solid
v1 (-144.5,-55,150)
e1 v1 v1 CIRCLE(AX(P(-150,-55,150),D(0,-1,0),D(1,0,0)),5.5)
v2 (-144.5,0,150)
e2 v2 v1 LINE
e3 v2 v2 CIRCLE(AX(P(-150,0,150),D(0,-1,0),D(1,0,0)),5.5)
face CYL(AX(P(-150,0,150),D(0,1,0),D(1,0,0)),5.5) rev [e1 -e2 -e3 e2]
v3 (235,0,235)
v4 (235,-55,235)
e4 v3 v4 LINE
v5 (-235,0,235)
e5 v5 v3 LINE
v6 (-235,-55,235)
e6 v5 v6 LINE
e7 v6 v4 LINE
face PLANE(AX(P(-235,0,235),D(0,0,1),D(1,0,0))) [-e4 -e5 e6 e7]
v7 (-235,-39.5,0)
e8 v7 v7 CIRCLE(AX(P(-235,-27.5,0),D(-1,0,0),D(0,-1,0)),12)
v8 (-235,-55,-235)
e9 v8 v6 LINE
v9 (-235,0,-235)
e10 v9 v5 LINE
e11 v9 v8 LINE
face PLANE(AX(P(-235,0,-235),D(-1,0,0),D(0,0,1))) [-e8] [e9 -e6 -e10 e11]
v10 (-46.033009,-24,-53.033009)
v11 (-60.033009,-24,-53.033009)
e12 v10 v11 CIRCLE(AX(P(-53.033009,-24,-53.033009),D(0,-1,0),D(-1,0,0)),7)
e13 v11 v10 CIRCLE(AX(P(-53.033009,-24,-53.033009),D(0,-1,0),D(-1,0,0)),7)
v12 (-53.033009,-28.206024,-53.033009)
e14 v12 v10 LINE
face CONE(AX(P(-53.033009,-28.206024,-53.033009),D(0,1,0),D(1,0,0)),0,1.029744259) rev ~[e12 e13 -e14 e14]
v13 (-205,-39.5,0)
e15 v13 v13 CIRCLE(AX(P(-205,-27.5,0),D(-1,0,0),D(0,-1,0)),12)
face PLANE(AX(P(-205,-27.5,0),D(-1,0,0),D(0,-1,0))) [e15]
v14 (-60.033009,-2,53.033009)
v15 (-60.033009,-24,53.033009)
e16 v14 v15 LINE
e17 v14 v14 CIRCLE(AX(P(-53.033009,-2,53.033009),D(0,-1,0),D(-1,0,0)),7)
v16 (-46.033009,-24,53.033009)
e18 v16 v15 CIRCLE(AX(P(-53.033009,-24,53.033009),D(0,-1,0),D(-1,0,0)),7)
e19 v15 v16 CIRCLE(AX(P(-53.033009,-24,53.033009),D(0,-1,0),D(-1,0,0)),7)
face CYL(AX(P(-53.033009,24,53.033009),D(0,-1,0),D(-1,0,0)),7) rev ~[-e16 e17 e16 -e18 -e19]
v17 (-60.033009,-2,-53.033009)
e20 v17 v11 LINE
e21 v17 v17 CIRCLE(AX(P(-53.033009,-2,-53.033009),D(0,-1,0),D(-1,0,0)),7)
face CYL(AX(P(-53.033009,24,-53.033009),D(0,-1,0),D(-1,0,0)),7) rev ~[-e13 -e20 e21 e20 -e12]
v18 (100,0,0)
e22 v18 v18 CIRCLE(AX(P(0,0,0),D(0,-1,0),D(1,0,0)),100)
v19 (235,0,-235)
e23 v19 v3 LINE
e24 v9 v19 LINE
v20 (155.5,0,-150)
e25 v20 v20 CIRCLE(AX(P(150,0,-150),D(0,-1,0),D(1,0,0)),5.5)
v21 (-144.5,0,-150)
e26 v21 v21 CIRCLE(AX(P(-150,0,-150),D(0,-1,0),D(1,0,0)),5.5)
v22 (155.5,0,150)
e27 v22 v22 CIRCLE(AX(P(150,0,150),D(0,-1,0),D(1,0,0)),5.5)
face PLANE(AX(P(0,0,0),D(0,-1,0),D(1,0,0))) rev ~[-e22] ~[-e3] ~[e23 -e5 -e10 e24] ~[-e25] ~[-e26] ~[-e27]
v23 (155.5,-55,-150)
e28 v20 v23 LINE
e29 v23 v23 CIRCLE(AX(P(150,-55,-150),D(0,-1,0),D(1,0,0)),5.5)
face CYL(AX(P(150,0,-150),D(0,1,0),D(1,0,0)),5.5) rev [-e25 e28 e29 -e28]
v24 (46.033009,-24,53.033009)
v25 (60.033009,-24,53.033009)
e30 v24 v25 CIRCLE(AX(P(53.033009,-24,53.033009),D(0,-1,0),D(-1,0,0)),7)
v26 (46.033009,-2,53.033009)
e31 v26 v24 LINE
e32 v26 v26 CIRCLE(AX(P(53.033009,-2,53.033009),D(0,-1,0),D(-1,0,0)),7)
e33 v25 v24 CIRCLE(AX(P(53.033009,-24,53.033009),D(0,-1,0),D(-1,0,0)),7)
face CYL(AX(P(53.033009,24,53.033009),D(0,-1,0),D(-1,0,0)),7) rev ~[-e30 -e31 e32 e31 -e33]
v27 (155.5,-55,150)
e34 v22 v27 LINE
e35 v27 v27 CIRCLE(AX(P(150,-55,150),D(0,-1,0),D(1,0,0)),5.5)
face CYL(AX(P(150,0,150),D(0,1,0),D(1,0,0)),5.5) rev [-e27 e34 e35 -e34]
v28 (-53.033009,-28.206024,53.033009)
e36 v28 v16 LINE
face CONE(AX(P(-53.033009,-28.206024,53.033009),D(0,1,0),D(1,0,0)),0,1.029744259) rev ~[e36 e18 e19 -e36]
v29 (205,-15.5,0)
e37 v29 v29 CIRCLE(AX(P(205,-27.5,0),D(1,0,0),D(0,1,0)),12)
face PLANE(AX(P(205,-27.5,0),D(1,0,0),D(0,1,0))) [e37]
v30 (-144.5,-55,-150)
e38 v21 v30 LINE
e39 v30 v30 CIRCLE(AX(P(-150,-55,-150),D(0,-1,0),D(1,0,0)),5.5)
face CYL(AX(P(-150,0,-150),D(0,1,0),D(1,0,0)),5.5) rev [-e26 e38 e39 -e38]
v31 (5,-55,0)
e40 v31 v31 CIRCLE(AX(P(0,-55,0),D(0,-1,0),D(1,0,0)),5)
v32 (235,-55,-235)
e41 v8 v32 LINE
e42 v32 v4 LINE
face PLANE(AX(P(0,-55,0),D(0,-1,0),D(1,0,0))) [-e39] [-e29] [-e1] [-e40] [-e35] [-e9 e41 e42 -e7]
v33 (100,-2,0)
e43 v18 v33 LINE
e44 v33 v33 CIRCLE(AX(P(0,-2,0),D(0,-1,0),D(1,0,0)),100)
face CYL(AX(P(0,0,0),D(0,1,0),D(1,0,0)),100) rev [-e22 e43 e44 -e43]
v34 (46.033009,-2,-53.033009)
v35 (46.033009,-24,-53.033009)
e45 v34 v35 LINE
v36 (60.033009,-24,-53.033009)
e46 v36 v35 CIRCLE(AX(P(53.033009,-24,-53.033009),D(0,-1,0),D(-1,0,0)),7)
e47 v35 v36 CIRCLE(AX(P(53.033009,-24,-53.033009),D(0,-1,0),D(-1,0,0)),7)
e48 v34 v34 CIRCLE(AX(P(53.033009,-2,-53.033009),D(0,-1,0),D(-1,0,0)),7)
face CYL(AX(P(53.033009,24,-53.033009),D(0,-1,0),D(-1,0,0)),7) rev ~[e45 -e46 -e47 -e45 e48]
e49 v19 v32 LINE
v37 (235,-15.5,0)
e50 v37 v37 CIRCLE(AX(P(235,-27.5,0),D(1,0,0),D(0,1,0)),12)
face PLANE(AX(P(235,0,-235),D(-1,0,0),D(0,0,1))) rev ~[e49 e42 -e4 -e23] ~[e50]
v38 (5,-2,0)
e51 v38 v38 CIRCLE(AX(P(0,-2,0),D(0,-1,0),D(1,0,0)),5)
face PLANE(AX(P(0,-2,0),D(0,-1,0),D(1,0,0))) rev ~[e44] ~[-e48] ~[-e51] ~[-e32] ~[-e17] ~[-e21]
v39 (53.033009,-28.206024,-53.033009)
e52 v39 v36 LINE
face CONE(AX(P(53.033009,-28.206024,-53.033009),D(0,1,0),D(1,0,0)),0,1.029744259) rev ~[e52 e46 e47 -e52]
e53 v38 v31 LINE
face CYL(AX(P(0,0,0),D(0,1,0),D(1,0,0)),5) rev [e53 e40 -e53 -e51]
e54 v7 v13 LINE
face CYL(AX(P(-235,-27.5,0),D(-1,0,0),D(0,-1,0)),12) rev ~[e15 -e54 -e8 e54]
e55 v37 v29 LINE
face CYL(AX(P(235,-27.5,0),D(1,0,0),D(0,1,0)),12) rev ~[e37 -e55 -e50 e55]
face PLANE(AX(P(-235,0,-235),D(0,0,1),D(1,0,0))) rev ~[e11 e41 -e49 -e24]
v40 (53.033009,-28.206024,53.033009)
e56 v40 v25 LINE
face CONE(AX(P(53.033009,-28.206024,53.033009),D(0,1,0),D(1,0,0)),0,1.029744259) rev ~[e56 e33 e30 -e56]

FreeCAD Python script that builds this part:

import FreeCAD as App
import Part
import Sketcher
Q = App.Units.Quantity

doc = App.newDocument("Part")
params = doc.addObject("Spreadsheet::Sheet", "Params")
for row, (alias, value) in enumerate([
    ("sketch1_diameter", "11 mm"),
    ("sketch1_diameter2", "10 mm"),
    ("sketch1_width", "470 mm"),
    ("pad1_length", "55 mm"),
    ("sketch2_diameter", "14 mm"),
    ("hole_diameter", "14 mm"),
    ("hole_depth", "24 mm"),
    ("sketch3_diameter", "200 mm"),
    ("sketch3_diameter2", "10 mm"),
    ("pocket1_length", "2 mm"),
    ("sketch4_diameter", "24 mm"),
    ("pocket2_length", "30 mm"),
    ("sketch5_diameter", "24 mm"),
    ("pocket3_length", "30 mm"),
], start=1):
    params.set(f"A{row}", alias)
    params.set(f"B{row}", "=" + value)
    params.setAlias(f"B{row}", alias)

body = doc.addObject("PartDesign::Body", "Body")

# Sketch on XZ plane
sketch1 = body.newObject("Sketcher::SketchObject", "Sketch")
sketch1.AttachmentSupport = (doc.getObject("XZ_Plane"), [""])
sketch1.MapMode = "FlatFace"
sketch1.addGeometry(Part.LineSegment(App.Vector(-235, 235, 0), App.Vector(-235, -235, 0)), False)
sketch1.addGeometry(Part.LineSegment(App.Vector(-235, -235, 0), App.Vector(235, -235, 0)), False)
sketch1.addGeometry(Part.LineSegment(App.Vector(235, -235, 0), App.Vector(235, 235, 0)), False)
sketch1.addGeometry(Part.LineSegment(App.Vector(235, 235, 0), App.Vector(-235, 235, 0)), False)
sketch1.addGeometry(Part.Circle(App.Vector(-150, -150, 0), App.Vector(0, 0, 1), 6), False)
sketch1.addGeometry(Part.Circle(App.Vector(150, -150, 0), App.Vector(0, 0, 1), 6), False)
sketch1.addGeometry(Part.Circle(App.Vector(-150, 150, 0), App.Vector(0, 0, 1), 6), False)
sketch1.addGeometry(Part.Circle(App.Vector(0, 0, 0), App.Vector(0, 0, 1), 5), False)
sketch1.addGeometry(Part.Circle(App.Vector(150, 150, 0), App.Vector(0, 0, 1), 6), False)
sketch1.addConstraint(Sketcher.Constraint("Coincident", 0, 2, 1, 1))
sketch1.addConstraint(Sketcher.Constraint("Coincident", 1, 2, 2, 1))
sketch1.addConstraint(Sketcher.Constraint("Coincident", 2, 2, 3, 1))
sketch1.addConstraint(Sketcher.Constraint("Coincident", 3, 2, 0, 1))
sketch1.addConstraint(Sketcher.Constraint("Vertical", 0))
sketch1.addConstraint(Sketcher.Constraint("Horizontal", 1))
sketch1.addConstraint(Sketcher.Constraint("Vertical", 2))
sketch1.addConstraint(Sketcher.Constraint("Horizontal", 3))
sketch1.addConstraint(Sketcher.Constraint("Coincident", 7, 3, -1, 1))
sketch1.addConstraint(Sketcher.Constraint("Equal", 4, 5))
sketch1.addConstraint(Sketcher.Constraint("Equal", 5, 6))
sketch1.addConstraint(Sketcher.Constraint("Equal", 6, 8))
sketch1.addConstraint(Sketcher.Constraint("Symmetric", 5, 3, 6, 3, -1, 1))
sketch1.addConstraint(Sketcher.Constraint("Symmetric", 4, 3, 8, 3, -1, 1))
sketch1.addConstraint(Sketcher.Constraint("Symmetric", 0, 2, 2, 2, -1, 1))
sketch1.addConstraint(Sketcher.Constraint("Symmetric", 4, 3, 5, 3, -2))
sketch1.addConstraint(Sketcher.Constraint("Equal", 3, 0))
sketch1.addConstraint(Sketcher.Constraint("Diameter", 4, Q("11 mm")))
sketch1.addConstraint(Sketcher.Constraint("Diameter", 7, Q("10 mm")))
sketch1.addConstraint(Sketcher.Constraint("DistanceX", 1, 1, 1, 2, Q("470 mm")))
sketch1.addConstraint(Sketcher.Constraint("DistanceX", 4, 3, -1, 1, Q("150 mm")))
sketch1.addConstraint(Sketcher.Constraint("DistanceY", 4, 3, -1, 1, Q("150 mm")))
sketch1.setExpression("Constraints[17]", "Params.sketch1_diameter")
sketch1.setExpression("Constraints[18]", "Params.sketch1_diameter2")
sketch1.setExpression("Constraints[19]", "Params.sketch1_width")
pad1 = body.newObject("PartDesign::Pad", "Pad")
pad1.Profile = sketch1
pad1.setExpression("Length", "Params.pad1_length")

# Sketch on XZ plane
sketch2 = body.newObject("Sketcher::SketchObject", "Sketch001")
sketch2.AttachmentSupport = (doc.getObject("XZ_Plane"), [""])
sketch2.MapMode = "FlatFace"
sketch2.addGeometry(Part.Circle(App.Vector(53, 53, 0), App.Vector(0, 0, 1), 7), False)
sketch2.addGeometry(Part.Circle(App.Vector(-53, 53, 0), App.Vector(0, 0, 1), 7), False)
sketch2.addGeometry(Part.Circle(App.Vector(-53, -53, 0), App.Vector(0, 0, 1), 7), False)
sketch2.addGeometry(Part.Circle(App.Vector(53, -53, 0), App.Vector(0, 0, 1), 7), False)
sketch2.addConstraint(Sketcher.Constraint("Equal", 0, 1))
sketch2.addConstraint(Sketcher.Constraint("Equal", 1, 2))
sketch2.addConstraint(Sketcher.Constraint("Equal", 2, 3))
sketch2.addConstraint(Sketcher.Constraint("Symmetric", 0, 3, 2, 3, -1, 1))
sketch2.addConstraint(Sketcher.Constraint("Symmetric", 1, 3, 3, 3, -1, 1))
sketch2.addConstraint(Sketcher.Constraint("Symmetric", 0, 3, 1, 3, -2))
sketch2.addConstraint(Sketcher.Constraint("Diameter", 0, Q("14 mm")))
sketch2.addConstraint(Sketcher.Constraint("DistanceX", -1, 1, 0, 3, Q("53.033009 mm")))
sketch2.addConstraint(Sketcher.Constraint("DistanceY", -1, 1, 0, 3, Q("53.033009 mm")))
sketch2.setExpression("Constraints[6]", "Params.sketch2_diameter")
doc.recompute()
hole = body.newObject("PartDesign::Hole", "Hole")
hole.Profile = sketch2
hole.ThreadType = "None"
hole.setExpression("Diameter", "Params.hole_diameter")
hole.DepthType = "Dimension"
hole.setExpression("Depth", "Params.hole_depth")
hole.DrillPoint = "Angled"
hole.DrillPointAngle = 118
hole.Reversed = True

# Sketch on XZ plane
sketch3 = body.newObject("Sketcher::SketchObject", "Sketch002")
sketch3.AttachmentSupport = (doc.getObject("XZ_Plane"), [""])
sketch3.MapMode = "FlatFace"
sketch3.addGeometry(Part.Circle(App.Vector(0, 0, 0), App.Vector(0, 0, 1), 100), False)
sketch3.addGeometry(Part.Circle(App.Vector(0, 0, 0), App.Vector(0, 0, 1), 5), False)
sketch3.addConstraint(Sketcher.Constraint("Coincident", 0, 3, -1, 1))
sketch3.addConstraint(Sketcher.Constraint("Coincident", 1, 3, -1, 1))
sketch3.addConstraint(Sketcher.Constraint("Diameter", 0, Q("200 mm")))
sketch3.addConstraint(Sketcher.Constraint("Diameter", 1, Q("10 mm")))
sketch3.setExpression("Constraints[2]", "Params.sketch3_diameter")
sketch3.setExpression("Constraints[3]", "Params.sketch3_diameter2")
pocket1 = body.newObject("PartDesign::Pocket", "Pocket")
pocket1.Profile = sketch3
pocket1.setExpression("Length", "Params.pocket1_length")
pocket1.Reversed = True

# Sketch on YZ plane
sketch4 = body.newObject("Sketcher::SketchObject", "Sketch003")
sketch4.AttachmentSupport = (doc.getObject("YZ_Plane"), [""])
sketch4.MapMode = "FlatFace"
sketch4.AttachmentOffset = App.Placement(App.Vector(0, 0, 235), App.Rotation())
sketch4.addGeometry(Part.Circle(App.Vector(-28, 0, 0), App.Vector(0, 0, 1), 12), False)
sketch4.addConstraint(Sketcher.Constraint("PointOnObject", 0, 3, -1))
sketch4.addConstraint(Sketcher.Constraint("Diameter", 0, Q("24 mm")))
sketch4.addConstraint(Sketcher.Constraint("DistanceX", 0, 3, -1, 1, Q("27.5 mm")))
sketch4.setExpression("Constraints[1]", "Params.sketch4_diameter")
pocket2 = body.newObject("PartDesign::Pocket", "Pocket001")
pocket2.Profile = sketch4
pocket2.setExpression("Length", "Params.pocket2_length")

# Sketch on YZ plane
sketch5 = body.newObject("Sketcher::SketchObject", "Sketch004")
sketch5.AttachmentSupport = (doc.getObject("YZ_Plane"), [""])
sketch5.MapMode = "FlatFace"
sketch5.AttachmentOffset = App.Placement(App.Vector(0, 0, -235), App.Rotation())
sketch5.addGeometry(Part.Circle(App.Vector(-28, 0, 0), App.Vector(0, 0, 1), 12), False)
sketch5.addConstraint(Sketcher.Constraint("PointOnObject", 0, 3, -1))
sketch5.addConstraint(Sketcher.Constraint("Diameter", 0, Q("24 mm")))
sketch5.addConstraint(Sketcher.Constraint("DistanceX", 0, 3, -1, 1, Q("27.5 mm")))
sketch5.setExpression("Constraints[1]", "Params.sketch5_diameter")
pocket3 = body.newObject("PartDesign::Pocket", "Pocket002")
pocket3.Profile = sketch5
pocket3.setExpression("Length", "Params.pocket3_length")
pocket3.Reversed = True

doc.recompute()
